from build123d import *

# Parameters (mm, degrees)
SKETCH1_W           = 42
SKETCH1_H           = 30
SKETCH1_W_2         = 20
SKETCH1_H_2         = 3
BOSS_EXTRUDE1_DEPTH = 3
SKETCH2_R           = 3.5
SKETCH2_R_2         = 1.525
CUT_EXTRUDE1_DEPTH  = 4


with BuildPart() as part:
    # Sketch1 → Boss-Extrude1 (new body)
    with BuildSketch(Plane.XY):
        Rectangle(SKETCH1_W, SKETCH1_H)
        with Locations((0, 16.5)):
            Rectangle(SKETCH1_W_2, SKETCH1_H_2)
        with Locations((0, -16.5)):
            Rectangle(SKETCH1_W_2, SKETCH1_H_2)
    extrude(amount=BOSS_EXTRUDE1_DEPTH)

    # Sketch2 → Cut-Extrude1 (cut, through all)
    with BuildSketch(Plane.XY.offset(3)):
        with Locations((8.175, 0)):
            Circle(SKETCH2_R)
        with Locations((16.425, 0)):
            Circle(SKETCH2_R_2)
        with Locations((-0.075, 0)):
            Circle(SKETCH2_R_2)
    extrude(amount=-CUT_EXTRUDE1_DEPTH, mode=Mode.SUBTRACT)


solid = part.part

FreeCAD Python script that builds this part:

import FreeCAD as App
import Part
import Sketcher

V = App.Vector
Q = App.Units.Quantity


def add_polygon(sketch, points):
    """Adds a closed chain of lines whose ends are joined by coincident constraints."""
    first, n = sketch.GeometryCount, len(points)
    for a, b in zip(points, points[1:] + points[:1]):
        sketch.addGeometry(Part.LineSegment(App.Vector(*a, 0), App.Vector(*b, 0)), False)
    for i in range(n):
        sketch.addConstraint(Sketcher.Constraint("Coincident", first + i, 2, first + (i + 1) % n, 1))

doc = App.newDocument("Part")
body = doc.addObject("PartDesign::Body", "Body")

sketch1 = body.newObject("Sketcher::SketchObject", "Sketch")
sketch1.AttachmentSupport = (doc.getObject("XY_Plane"), [""])
sketch1.MapMode = "FlatFace"
add_polygon(sketch1, [(-21, 15), (-21, -15), (-10, -15), (-10, -18), (10, -18), (10, -15), (21, -15), (21, 15), (10, 15), (10, 18), (-10, 18), (-10, 15)])
sketch1.addConstraint([
    Sketcher.Constraint("Vertical", 0),
    Sketcher.Constraint("Horizontal", 1),
    Sketcher.Constraint("Vertical", 2),
    Sketcher.Constraint("Horizontal", 3),
    Sketcher.Constraint("Vertical", 4),
    Sketcher.Constraint("Horizontal", 5),
    Sketcher.Constraint("Vertical", 6),
    Sketcher.Constraint("Horizontal", 7),
    Sketcher.Constraint("Vertical", 8),
    Sketcher.Constraint("Horizontal", 9),
    Sketcher.Constraint("Vertical", 10),
    Sketcher.Constraint("Horizontal", 11),
    Sketcher.Constraint("Symmetric", 0, 2, 6, 2, -1, 1),
    Sketcher.Constraint("Symmetric", 2, 2, 8, 2, -1, 1),
    Sketcher.Constraint("Symmetric", 4, 2, 10, 2, -1, 1),
    Sketcher.Constraint("Symmetric", 1, 2, 4, 2, -2),
    Sketcher.Constraint("DistanceX", 1, 1, 1, 2, Q("11 mm")),
    Sketcher.Constraint("DistanceX", 3, 1, 3, 2, Q("20 mm")),
    Sketcher.Constraint("DistanceY", 0, 2, 0, 1, Q("30 mm")),
    Sketcher.Constraint("DistanceY", 2, 2, 2, 1, Q("3 mm")),
])
pad1 = body.newObject("PartDesign::Pad", "Pad")
pad1.Profile = sketch1
pad1.Length = 3

sketch2 = body.newObject("Sketcher::SketchObject", "Sketch001")
sketch2.AttachmentSupport = (doc.getObject("XY_Plane"), [""])
sketch2.MapMode = "FlatFace"
sketch2.AttachmentOffset = App.Placement(V(0, 0, 3), App.Rotation())
sketch2.addGeometry([
    Part.Circle(V(8.2, 0, 0), V(0, 0, 1), 3.5),
    Part.Circle(V(16.4, 0, 0), V(0, 0, 1), 1.5),
    Part.Circle(V(-0.1, 0, 0), V(0, 0, 1), 1.5),
], False)
sketch2.addConstraint([
    Sketcher.Constraint("Equal", 1, 2),
    Sketcher.Constraint("PointOnObject", 0, 3, -1),
    Sketcher.Constraint("PointOnObject", 1, 3, -1),
    Sketcher.Constraint("PointOnObject", 2, 3, -1),
    Sketcher.Constraint("Diameter", 0, Q("7 mm")),
    Sketcher.Constraint("Diameter", 1, Q("3.05 mm")),
    Sketcher.Constraint("DistanceX", 2, 3, 1, 3, Q("16.5 mm")),
    Sketcher.Constraint("DistanceX", 0, 3, 1, 3, Q("8.25 mm")),
    Sketcher.Constraint("DistanceX", -1, 1, 0, 3, Q("8.175 mm")),
])
pocket1 = body.newObject("PartDesign::Pocket", "Pocket")
pocket1.Profile = sketch2
pocket1.Type = "ThroughAll"

doc.recompute()
